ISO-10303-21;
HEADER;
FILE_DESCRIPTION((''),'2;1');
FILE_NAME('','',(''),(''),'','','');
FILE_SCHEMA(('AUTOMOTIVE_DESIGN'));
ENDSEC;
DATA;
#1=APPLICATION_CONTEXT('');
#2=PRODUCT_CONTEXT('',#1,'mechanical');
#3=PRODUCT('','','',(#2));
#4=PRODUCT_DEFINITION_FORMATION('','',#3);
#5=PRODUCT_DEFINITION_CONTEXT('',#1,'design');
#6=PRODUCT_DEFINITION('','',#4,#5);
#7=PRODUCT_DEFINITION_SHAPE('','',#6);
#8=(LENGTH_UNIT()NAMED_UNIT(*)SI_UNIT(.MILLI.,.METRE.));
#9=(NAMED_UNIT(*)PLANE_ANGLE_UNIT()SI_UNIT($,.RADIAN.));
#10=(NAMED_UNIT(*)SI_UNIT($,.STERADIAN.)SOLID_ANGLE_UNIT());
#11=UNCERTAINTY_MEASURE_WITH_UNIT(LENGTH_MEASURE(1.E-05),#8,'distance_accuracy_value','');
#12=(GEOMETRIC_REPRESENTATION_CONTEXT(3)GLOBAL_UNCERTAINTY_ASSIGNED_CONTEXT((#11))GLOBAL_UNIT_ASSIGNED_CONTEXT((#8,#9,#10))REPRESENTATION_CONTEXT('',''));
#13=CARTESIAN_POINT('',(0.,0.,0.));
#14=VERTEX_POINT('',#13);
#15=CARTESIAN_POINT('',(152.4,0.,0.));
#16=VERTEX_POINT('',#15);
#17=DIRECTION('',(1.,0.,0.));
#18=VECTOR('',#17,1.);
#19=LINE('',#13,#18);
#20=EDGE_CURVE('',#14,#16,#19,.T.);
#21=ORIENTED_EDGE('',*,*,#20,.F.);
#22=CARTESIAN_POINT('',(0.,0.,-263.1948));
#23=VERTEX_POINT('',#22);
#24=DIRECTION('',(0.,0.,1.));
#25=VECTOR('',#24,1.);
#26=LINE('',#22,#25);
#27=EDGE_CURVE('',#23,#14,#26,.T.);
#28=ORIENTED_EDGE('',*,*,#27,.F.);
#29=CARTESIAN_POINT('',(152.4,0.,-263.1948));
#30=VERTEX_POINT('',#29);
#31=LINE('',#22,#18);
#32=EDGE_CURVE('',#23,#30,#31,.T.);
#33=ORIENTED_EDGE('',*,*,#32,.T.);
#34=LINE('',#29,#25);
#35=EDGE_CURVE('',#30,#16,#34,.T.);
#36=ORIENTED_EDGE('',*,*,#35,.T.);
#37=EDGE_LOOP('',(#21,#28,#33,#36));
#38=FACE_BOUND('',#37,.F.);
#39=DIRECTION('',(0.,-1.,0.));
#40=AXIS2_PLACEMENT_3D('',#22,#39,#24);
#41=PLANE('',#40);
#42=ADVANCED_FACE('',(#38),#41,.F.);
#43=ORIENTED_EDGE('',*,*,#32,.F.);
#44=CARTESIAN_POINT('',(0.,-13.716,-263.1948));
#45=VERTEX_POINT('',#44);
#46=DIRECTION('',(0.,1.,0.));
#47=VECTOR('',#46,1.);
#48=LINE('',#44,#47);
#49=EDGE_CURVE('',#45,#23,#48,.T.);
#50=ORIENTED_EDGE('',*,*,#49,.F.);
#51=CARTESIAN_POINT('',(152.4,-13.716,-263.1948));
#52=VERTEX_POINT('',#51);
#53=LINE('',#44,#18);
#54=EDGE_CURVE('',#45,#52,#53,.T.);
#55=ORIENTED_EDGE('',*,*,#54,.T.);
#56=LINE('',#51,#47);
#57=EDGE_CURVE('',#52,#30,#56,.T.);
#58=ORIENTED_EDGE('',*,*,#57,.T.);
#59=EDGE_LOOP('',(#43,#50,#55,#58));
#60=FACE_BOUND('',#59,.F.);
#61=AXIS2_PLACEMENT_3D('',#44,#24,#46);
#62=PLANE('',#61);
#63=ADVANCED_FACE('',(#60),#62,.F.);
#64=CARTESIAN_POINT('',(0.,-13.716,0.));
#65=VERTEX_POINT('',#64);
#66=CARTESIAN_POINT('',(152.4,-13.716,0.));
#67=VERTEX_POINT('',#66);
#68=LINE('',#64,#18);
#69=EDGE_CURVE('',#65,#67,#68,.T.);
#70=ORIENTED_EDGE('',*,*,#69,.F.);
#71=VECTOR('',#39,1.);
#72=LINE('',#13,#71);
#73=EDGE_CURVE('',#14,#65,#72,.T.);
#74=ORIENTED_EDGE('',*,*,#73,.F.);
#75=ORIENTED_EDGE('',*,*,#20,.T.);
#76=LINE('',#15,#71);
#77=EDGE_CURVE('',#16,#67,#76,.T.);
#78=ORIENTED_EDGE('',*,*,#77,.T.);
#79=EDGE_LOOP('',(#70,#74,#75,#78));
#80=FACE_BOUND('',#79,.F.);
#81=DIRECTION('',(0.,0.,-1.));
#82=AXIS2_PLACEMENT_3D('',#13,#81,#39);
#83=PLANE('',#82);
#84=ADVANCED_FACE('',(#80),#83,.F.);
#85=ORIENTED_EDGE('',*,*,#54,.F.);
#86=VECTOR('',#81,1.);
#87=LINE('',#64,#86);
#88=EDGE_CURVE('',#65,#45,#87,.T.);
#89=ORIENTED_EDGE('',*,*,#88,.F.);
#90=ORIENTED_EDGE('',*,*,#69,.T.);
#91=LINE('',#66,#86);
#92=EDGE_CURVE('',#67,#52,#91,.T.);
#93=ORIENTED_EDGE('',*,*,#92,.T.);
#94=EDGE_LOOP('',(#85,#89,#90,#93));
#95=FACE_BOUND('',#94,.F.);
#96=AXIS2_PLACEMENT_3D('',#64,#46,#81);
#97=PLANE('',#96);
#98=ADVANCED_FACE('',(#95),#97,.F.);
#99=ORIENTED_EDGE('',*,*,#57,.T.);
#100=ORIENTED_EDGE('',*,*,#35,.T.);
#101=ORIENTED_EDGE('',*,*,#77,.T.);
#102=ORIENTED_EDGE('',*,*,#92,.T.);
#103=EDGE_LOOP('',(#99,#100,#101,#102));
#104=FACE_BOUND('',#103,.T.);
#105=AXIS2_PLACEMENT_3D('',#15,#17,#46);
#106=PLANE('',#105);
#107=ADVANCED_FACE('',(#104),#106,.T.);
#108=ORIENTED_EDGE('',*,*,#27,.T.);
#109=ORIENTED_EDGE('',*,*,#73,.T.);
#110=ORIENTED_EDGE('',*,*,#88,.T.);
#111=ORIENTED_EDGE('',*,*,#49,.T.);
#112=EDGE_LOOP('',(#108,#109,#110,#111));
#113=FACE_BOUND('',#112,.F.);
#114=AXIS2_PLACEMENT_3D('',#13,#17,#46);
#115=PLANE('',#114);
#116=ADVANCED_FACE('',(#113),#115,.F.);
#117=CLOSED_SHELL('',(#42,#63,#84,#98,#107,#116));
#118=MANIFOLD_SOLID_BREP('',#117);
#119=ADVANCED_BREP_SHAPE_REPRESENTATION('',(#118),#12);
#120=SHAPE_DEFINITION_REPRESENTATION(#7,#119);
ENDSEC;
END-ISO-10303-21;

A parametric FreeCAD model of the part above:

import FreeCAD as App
import Part
import Sketcher

V = App.Vector
Q = App.Units.Quantity


def add_polygon(sketch, points):
    """Adds a closed chain of lines whose ends are joined by coincident constraints."""
    first, n = sketch.GeometryCount, len(points)
    for a, b in zip(points, points[1:] + points[:1]):
        sketch.addGeometry(Part.LineSegment(App.Vector(*a, 0), App.Vector(*b, 0)), False)
    for i in range(n):
        sketch.addConstraint(Sketcher.Constraint("Coincident", first + i, 2, first + (i + 1) % n, 1))

doc = App.newDocument("Part")
body = doc.addObject("PartDesign::Body", "Body")

sketch1 = body.newObject("Sketcher::SketchObject", "Sketch")
sketch1.AttachmentSupport = (doc.getObject("YZ_Plane"), [""])
sketch1.MapMode = "FlatFace"
add_polygon(sketch1, [(0, -263), (0, 0), (-14, 0), (-14, -263)])
sketch1.addConstraint([
    Sketcher.Constraint("Vertical", 0),
    Sketcher.Constraint("Horizontal", 1),
    Sketcher.Constraint("Vertical", 2),
    Sketcher.Constraint("Horizontal", 3),
    Sketcher.Constraint("Coincident", 0, 2, -1, 1),
    Sketcher.Constraint("DistanceX", 1, 2, 1, 1, Q("0.54 in")),
    Sketcher.Constraint("DistanceY", 0, 1, 0, 2, Q("10.362 in")),
])
pad1 = body.newObject("PartDesign::Pad", "Pad")
pad1.Profile = sketch1
pad1.Length = Q("6 in")

doc.recompute()
